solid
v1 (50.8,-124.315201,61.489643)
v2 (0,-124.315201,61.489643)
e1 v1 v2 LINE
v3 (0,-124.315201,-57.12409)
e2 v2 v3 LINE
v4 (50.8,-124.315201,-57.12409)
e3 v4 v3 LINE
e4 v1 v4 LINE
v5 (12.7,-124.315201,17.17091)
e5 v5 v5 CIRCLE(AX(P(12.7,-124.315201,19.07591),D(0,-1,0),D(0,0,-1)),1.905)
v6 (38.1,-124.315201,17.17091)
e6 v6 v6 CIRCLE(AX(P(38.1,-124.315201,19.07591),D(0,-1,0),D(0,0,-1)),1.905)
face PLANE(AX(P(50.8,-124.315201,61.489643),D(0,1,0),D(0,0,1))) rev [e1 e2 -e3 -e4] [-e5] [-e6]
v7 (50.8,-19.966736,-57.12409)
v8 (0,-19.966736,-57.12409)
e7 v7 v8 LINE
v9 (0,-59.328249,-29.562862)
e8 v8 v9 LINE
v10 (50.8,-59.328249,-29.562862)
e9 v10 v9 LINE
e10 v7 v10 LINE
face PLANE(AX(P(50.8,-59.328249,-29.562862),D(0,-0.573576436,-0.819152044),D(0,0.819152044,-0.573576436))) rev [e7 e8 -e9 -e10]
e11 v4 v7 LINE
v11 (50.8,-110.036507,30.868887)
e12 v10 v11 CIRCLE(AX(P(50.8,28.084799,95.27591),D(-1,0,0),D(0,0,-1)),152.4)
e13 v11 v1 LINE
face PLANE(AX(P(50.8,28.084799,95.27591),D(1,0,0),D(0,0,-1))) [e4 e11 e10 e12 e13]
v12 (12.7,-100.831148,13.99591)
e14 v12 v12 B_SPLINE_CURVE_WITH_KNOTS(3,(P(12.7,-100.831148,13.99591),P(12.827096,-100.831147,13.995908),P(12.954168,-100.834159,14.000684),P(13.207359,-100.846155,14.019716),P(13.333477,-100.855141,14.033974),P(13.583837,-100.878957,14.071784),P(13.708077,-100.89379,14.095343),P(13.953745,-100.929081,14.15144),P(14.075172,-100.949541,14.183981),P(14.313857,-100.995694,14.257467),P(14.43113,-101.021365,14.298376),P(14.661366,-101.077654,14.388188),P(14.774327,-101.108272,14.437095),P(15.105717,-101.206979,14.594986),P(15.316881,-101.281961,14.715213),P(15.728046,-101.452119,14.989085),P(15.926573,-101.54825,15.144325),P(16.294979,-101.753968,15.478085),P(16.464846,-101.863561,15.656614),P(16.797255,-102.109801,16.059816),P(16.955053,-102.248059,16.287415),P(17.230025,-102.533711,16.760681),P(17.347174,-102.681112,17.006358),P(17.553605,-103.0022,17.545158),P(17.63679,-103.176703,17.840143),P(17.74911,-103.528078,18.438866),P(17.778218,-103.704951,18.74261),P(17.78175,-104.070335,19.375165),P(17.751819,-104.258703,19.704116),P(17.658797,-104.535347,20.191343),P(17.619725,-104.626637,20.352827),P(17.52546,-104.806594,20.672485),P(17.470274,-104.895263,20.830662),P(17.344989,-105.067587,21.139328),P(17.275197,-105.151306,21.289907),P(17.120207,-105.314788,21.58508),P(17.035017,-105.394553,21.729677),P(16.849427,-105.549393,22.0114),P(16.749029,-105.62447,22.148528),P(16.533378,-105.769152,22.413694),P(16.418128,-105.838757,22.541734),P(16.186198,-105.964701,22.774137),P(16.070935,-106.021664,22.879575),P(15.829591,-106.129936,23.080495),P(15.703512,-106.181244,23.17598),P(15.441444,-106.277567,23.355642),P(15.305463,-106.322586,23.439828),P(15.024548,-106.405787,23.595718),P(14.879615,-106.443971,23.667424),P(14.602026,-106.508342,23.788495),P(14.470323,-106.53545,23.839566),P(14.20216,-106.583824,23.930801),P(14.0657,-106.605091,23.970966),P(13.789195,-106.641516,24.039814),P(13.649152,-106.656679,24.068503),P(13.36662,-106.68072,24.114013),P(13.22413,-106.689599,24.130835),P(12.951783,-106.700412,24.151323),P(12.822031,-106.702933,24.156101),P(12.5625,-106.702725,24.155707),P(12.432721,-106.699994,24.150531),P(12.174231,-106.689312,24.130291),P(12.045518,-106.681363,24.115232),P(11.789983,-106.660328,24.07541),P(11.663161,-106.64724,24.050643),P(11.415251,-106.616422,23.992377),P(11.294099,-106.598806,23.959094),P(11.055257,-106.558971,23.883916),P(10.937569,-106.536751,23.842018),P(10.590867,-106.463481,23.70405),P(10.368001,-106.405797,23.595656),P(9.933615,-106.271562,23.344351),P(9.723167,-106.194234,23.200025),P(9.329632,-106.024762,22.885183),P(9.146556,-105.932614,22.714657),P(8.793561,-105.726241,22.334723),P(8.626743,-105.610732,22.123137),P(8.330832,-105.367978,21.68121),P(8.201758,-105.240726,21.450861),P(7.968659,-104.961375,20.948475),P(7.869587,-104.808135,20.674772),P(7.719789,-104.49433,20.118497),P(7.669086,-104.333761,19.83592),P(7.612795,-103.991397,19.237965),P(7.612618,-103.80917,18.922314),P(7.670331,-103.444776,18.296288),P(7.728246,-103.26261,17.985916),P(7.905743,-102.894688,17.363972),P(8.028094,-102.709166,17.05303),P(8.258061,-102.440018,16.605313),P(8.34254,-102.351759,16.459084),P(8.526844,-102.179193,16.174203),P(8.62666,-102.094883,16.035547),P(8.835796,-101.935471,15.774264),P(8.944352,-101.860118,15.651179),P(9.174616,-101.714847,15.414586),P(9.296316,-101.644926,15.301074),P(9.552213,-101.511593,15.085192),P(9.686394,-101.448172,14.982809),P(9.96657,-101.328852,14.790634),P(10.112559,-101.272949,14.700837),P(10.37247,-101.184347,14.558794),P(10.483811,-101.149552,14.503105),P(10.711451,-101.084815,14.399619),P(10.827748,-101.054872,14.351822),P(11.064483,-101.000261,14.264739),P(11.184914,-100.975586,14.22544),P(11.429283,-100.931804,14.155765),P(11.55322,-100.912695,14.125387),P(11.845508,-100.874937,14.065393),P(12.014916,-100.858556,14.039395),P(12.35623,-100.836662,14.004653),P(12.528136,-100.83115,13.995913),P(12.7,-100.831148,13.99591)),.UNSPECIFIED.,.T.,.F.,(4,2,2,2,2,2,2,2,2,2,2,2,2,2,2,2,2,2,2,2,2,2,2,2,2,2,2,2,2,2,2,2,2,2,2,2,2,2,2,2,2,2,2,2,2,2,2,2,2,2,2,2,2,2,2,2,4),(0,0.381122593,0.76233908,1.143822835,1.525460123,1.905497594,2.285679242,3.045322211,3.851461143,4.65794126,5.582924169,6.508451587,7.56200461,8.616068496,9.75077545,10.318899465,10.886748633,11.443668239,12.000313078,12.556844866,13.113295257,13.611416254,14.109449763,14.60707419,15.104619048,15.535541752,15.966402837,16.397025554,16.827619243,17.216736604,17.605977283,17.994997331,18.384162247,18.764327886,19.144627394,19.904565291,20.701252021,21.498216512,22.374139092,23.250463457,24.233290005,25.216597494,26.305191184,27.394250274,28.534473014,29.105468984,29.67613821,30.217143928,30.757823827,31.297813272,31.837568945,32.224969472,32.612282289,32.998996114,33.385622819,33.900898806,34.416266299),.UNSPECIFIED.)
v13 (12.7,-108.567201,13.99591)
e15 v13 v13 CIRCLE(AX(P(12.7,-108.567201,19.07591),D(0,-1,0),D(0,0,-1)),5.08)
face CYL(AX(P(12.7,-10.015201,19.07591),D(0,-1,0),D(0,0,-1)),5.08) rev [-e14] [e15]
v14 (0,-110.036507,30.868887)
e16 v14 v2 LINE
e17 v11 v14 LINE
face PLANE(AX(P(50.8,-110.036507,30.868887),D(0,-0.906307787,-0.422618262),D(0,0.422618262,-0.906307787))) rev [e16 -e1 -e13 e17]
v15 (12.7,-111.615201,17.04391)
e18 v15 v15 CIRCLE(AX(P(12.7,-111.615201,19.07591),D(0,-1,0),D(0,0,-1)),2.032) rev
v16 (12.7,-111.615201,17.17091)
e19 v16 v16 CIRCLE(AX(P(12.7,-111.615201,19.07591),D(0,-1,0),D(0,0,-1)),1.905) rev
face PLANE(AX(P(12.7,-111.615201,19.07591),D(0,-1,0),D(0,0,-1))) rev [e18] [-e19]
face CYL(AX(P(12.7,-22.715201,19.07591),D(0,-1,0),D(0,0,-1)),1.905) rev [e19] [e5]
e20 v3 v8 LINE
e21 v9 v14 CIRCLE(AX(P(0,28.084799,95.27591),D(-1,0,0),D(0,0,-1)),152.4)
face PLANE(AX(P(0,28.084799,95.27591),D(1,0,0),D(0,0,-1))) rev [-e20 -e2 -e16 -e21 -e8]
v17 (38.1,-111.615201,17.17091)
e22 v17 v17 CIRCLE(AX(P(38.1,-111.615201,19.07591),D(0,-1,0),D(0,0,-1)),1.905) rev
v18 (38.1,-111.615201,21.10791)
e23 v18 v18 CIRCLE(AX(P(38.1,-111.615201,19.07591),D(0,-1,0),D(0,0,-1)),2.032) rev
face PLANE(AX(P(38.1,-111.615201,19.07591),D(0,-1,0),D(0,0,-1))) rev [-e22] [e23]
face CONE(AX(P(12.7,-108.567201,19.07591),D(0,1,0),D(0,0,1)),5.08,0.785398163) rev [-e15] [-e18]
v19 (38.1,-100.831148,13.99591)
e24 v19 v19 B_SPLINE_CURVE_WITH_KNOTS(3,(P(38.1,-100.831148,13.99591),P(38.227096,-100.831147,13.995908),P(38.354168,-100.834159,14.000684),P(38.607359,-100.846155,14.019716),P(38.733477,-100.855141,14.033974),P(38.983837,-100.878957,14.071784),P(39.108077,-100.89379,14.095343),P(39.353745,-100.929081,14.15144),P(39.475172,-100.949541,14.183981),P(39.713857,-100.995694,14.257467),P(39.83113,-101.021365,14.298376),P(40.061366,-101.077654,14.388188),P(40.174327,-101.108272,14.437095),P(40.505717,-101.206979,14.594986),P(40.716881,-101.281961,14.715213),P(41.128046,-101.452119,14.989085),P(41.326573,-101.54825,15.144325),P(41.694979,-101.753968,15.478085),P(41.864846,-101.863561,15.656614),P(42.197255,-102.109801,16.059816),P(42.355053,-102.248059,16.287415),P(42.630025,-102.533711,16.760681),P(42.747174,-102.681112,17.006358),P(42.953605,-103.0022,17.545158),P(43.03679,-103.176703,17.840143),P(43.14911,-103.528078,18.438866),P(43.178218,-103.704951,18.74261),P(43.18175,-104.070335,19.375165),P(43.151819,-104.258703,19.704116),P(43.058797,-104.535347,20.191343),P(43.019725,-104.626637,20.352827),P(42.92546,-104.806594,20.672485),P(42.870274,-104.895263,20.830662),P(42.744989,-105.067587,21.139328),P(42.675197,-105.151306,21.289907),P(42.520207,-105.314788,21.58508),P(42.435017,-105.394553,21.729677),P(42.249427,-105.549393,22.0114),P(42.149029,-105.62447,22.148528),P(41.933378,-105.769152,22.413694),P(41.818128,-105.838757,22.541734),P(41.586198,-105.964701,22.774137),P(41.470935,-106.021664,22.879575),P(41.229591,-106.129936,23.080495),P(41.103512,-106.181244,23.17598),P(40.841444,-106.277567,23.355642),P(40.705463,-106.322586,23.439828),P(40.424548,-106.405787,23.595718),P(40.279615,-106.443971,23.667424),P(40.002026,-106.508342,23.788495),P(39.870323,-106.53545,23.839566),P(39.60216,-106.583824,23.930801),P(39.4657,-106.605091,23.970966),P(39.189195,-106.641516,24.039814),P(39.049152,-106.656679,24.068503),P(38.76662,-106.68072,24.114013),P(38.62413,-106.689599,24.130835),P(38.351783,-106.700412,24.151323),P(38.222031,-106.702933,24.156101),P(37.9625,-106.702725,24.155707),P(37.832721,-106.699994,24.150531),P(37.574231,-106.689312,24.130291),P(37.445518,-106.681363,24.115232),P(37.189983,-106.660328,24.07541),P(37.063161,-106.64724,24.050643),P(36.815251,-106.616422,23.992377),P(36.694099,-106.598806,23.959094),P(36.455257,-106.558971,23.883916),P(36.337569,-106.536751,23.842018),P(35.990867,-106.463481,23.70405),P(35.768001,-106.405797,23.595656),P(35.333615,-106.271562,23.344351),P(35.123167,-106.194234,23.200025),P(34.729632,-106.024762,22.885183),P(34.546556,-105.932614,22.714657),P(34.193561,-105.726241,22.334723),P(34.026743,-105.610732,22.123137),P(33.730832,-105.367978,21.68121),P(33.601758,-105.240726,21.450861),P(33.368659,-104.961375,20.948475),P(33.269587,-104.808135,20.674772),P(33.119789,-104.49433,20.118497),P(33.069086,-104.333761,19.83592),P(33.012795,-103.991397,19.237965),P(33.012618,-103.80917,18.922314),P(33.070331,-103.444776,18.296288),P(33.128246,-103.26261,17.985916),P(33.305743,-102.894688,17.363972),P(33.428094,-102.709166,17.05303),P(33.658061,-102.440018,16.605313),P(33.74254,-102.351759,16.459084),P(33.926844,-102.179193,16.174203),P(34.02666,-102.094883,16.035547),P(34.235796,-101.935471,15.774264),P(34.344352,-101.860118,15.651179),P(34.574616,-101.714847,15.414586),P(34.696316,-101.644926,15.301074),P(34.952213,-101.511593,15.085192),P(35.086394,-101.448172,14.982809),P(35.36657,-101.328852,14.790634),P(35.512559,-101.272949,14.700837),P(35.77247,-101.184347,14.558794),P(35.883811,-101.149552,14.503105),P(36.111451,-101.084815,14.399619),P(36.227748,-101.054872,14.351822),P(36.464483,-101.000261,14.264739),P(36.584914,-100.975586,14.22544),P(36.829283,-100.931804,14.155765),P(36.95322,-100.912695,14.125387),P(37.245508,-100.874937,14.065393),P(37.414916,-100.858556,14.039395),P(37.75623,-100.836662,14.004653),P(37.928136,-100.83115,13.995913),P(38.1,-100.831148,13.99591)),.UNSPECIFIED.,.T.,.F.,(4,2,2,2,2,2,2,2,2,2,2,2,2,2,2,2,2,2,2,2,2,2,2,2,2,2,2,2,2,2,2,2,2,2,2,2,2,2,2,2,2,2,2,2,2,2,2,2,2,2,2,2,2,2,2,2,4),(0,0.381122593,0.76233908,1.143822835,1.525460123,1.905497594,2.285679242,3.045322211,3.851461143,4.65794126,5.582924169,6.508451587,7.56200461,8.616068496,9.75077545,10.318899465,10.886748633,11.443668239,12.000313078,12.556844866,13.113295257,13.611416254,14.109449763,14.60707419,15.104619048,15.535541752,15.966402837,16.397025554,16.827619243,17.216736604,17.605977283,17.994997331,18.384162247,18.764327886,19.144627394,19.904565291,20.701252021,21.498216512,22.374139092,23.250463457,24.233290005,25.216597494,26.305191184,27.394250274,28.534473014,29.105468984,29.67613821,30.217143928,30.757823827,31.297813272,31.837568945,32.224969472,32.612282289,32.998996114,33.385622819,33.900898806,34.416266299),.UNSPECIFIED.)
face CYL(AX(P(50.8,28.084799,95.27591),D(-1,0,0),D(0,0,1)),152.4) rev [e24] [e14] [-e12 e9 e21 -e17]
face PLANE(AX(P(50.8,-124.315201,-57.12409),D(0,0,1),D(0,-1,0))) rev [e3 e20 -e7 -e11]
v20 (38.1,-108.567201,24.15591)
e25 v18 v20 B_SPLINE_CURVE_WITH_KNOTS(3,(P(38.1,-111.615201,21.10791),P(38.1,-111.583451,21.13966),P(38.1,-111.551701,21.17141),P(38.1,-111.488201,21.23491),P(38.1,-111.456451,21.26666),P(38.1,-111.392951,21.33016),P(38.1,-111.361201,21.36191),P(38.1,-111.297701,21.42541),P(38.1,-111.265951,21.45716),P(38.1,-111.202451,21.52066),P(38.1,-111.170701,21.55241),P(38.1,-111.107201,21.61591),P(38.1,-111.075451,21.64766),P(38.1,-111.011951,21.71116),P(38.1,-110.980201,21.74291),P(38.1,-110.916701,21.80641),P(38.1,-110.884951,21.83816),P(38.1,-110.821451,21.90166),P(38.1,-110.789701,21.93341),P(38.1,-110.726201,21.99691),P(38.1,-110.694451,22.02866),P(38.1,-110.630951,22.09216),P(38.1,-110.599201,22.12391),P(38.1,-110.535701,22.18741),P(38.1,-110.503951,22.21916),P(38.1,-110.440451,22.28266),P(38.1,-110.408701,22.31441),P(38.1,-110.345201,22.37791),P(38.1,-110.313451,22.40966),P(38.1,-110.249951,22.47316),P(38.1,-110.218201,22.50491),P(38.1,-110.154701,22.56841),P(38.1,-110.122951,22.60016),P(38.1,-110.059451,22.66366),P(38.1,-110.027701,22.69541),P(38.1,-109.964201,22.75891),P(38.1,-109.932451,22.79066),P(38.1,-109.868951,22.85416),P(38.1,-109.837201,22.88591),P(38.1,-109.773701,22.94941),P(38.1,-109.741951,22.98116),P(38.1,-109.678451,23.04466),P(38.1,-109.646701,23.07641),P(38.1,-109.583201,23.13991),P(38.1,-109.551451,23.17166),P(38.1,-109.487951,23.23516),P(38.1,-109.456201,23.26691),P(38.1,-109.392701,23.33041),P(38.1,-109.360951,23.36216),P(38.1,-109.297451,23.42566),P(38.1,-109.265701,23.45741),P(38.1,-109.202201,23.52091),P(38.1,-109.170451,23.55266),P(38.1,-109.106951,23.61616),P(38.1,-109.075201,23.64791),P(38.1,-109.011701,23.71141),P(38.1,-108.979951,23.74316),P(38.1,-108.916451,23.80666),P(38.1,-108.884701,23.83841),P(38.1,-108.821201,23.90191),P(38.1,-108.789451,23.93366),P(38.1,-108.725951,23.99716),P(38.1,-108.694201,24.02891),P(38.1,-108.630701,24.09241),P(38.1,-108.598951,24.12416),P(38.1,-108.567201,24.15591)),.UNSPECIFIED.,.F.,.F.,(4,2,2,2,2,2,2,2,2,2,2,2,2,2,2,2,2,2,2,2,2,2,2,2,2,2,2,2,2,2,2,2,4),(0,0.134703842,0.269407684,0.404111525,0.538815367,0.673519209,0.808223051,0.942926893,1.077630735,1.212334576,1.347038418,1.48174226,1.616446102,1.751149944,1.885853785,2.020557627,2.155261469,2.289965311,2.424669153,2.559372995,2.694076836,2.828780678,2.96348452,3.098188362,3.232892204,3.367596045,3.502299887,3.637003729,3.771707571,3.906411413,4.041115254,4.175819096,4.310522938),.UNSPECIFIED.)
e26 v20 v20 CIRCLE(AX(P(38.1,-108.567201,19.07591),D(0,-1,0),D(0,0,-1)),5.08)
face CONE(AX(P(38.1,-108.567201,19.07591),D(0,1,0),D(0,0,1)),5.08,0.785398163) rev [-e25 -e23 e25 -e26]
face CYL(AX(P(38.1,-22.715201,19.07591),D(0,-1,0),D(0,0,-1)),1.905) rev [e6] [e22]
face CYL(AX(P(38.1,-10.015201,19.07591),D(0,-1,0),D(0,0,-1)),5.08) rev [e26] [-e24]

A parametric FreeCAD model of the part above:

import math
import FreeCAD as App
import Part
import Sketcher
Q = App.Units.Quantity


def edges_at(feature, points):
    """Names of the edges that pass closest to the given points."""
    edges = feature.Shape.Edges
    near = lambda p: min(range(len(edges)), key=lambda i: edges[i].distToShape(Part.Vertex(*p))[0])
    return sorted({f"Edge{near(p) + 1}" for p in points})

doc = App.newDocument("Part")
params = doc.addObject("Spreadsheet::Sheet", "Params")
for row, (alias, value) in enumerate([
    ("sketch1_radius", "6 in"),
    ("pad1_length", "2 in"),
    ("sketch2_diameter", "0.15 in"),
    ("pocket1_length", "4 in"),
    ("sketch3_diameter", "0.4 in"),
    ("pocket2_length", "4 in"),
    ("chamfer_size", "0.12 in"),
], start=1):
    params.set(f"A{row}", alias)
    params.set(f"B{row}", "=" + value)
    params.setAlias(f"B{row}", alias)

body = doc.addObject("PartDesign::Body", "Body")

sketch1 = doc.addObject("Sketcher::SketchObject", "Sketch")
body.addObject(sketch1)
sketch1.AttachmentSupport = (doc.YZ_Plane, [""])
sketch1.MapMode = "FlatFace"
sketch1.addGeometry([
    Part.LineSegment(App.Vector(-124, 61, 0), App.Vector(-124, -57, 0)),
    Part.LineSegment(App.Vector(-124, -57, 0), App.Vector(-20, -57, 0)),
    Part.LineSegment(App.Vector(-20, -57, 0), App.Vector(-59, -30, 0)),
    Part.ArcOfCircle(Part.Circle(App.Vector(28, 95, 0), App.Vector(0, 0, 1), 152), math.radians(-155), math.radians(-125)),
    Part.LineSegment(App.Vector(-110, 31, 0), App.Vector(-124, 61, 0)),
], False)
sketch1.addConstraint([
    Sketcher.Constraint("Coincident", 0, 2, 1, 1),
    Sketcher.Constraint("Coincident", 1, 2, 2, 1),
    Sketcher.Constraint("Tangent", 2, 2, 3, 2),
    Sketcher.Constraint("Tangent", 3, 1, 4, 1),
    Sketcher.Constraint("Coincident", 4, 2, 0, 1),
    Sketcher.Constraint("Vertical", 0),
    Sketcher.Constraint("Horizontal", 1),
    Sketcher.Constraint("Radius", 3, Q("6 in")),
    Sketcher.Constraint("Angle", 2, Q("145 deg")),
    Sketcher.Constraint("Angle", 4, Q("115 deg")),
    Sketcher.Constraint("DistanceX", 0, 2, 3, 3, Q("6 in")),
    Sketcher.Constraint("DistanceY", 0, 2, 3, 3, Q("6 in")),
    Sketcher.Constraint("DistanceX", -1, 1, 3, 3, 28.084799),
    Sketcher.Constraint("DistanceY", -1, 1, 3, 3, 95.27591),
])
sketch1.setExpression("Constraints[7]", "Params.sketch1_radius")
pad1 = doc.addObject("PartDesign::Pad", "Pad")
body.addObject(pad1)
pad1.Profile = sketch1
pad1.setExpression("Length", "Params.pad1_length")

sketch2 = doc.addObject("Sketcher::SketchObject", "Sketch001")
body.addObject(sketch2)
sketch2.AttachmentSupport = (doc.XZ_Plane, [""])
sketch2.MapMode = "FlatFace"
sketch2.AttachmentOffset = App.Placement(App.Vector(0, 0, 124.315201), App.Rotation())
sketch2.addGeometry([
    Part.Circle(App.Vector(12.7, 19.1, 0), App.Vector(0, 0, 1), 1.9),
    Part.Circle(App.Vector(38.1, 19.1, 0), App.Vector(0, 0, 1), 1.9),
], False)
sketch2.addConstraint([
    Sketcher.Constraint("Equal", 0, 1),
    Sketcher.Constraint("Horizontal", 0, 3, 1, 3),
    Sketcher.Constraint("Diameter", 0, Q("0.15 in")),
    Sketcher.Constraint("DistanceX", 0, 3, 1, 3, Q("1 in")),
    Sketcher.Constraint("DistanceX", -1, 1, 0, 3, Q("0.5 in")),
    Sketcher.Constraint("DistanceY", -1, 1, 0, 3, 19.07591),
])
sketch2.setExpression("Constraints[2]", "Params.sketch2_diameter")
pocket1 = doc.addObject("PartDesign::Pocket", "Pocket")
body.addObject(pocket1)
pocket1.Profile = sketch2
pocket1.setExpression("Length", "Params.pocket1_length")

sketch3 = doc.addObject("Sketcher::SketchObject", "Sketch002")
body.addObject(sketch3)
sketch3.AttachmentSupport = (doc.XZ_Plane, [""])
sketch3.MapMode = "FlatFace"
sketch3.AttachmentOffset = App.Placement(App.Vector(0, 0, 111.615201), App.Rotation())
sketch3.addGeometry([
    Part.Circle(App.Vector(13, 19, 0), App.Vector(0, 0, 1), 5),
    Part.Circle(App.Vector(38, 19, 0), App.Vector(0, 0, 1), 5),
], False)
sketch3.addConstraint([
    Sketcher.Constraint("Equal", 0, 1),
    Sketcher.Constraint("Horizontal", 0, 3, 1, 3),
    Sketcher.Constraint("Diameter", 0, Q("0.4 in")),
    Sketcher.Constraint("DistanceX", 0, 3, 1, 3, Q("1 in")),
    Sketcher.Constraint("DistanceX", -1, 1, 0, 3, Q("0.5 in")),
    Sketcher.Constraint("DistanceY", -1, 1, 0, 3, 19.07591),
])
sketch3.setExpression("Constraints[2]", "Params.sketch3_diameter")
pocket2 = doc.addObject("PartDesign::Pocket", "Pocket001")
body.addObject(pocket2)
pocket2.Profile = sketch3
pocket2.setExpression("Length", "Params.pocket2_length")
doc.recompute()

chamfer = doc.addObject("PartDesign::Chamfer", "Chamfer")
body.addObject(chamfer)
chamfer.Base = (pocket2, edges_at(pocket2, [(12.7, -111.615, 24.156), (38.1, -111.615, 24.156)]))
chamfer.setExpression("Size", "Params.chamfer_size")

doc.recompute()
